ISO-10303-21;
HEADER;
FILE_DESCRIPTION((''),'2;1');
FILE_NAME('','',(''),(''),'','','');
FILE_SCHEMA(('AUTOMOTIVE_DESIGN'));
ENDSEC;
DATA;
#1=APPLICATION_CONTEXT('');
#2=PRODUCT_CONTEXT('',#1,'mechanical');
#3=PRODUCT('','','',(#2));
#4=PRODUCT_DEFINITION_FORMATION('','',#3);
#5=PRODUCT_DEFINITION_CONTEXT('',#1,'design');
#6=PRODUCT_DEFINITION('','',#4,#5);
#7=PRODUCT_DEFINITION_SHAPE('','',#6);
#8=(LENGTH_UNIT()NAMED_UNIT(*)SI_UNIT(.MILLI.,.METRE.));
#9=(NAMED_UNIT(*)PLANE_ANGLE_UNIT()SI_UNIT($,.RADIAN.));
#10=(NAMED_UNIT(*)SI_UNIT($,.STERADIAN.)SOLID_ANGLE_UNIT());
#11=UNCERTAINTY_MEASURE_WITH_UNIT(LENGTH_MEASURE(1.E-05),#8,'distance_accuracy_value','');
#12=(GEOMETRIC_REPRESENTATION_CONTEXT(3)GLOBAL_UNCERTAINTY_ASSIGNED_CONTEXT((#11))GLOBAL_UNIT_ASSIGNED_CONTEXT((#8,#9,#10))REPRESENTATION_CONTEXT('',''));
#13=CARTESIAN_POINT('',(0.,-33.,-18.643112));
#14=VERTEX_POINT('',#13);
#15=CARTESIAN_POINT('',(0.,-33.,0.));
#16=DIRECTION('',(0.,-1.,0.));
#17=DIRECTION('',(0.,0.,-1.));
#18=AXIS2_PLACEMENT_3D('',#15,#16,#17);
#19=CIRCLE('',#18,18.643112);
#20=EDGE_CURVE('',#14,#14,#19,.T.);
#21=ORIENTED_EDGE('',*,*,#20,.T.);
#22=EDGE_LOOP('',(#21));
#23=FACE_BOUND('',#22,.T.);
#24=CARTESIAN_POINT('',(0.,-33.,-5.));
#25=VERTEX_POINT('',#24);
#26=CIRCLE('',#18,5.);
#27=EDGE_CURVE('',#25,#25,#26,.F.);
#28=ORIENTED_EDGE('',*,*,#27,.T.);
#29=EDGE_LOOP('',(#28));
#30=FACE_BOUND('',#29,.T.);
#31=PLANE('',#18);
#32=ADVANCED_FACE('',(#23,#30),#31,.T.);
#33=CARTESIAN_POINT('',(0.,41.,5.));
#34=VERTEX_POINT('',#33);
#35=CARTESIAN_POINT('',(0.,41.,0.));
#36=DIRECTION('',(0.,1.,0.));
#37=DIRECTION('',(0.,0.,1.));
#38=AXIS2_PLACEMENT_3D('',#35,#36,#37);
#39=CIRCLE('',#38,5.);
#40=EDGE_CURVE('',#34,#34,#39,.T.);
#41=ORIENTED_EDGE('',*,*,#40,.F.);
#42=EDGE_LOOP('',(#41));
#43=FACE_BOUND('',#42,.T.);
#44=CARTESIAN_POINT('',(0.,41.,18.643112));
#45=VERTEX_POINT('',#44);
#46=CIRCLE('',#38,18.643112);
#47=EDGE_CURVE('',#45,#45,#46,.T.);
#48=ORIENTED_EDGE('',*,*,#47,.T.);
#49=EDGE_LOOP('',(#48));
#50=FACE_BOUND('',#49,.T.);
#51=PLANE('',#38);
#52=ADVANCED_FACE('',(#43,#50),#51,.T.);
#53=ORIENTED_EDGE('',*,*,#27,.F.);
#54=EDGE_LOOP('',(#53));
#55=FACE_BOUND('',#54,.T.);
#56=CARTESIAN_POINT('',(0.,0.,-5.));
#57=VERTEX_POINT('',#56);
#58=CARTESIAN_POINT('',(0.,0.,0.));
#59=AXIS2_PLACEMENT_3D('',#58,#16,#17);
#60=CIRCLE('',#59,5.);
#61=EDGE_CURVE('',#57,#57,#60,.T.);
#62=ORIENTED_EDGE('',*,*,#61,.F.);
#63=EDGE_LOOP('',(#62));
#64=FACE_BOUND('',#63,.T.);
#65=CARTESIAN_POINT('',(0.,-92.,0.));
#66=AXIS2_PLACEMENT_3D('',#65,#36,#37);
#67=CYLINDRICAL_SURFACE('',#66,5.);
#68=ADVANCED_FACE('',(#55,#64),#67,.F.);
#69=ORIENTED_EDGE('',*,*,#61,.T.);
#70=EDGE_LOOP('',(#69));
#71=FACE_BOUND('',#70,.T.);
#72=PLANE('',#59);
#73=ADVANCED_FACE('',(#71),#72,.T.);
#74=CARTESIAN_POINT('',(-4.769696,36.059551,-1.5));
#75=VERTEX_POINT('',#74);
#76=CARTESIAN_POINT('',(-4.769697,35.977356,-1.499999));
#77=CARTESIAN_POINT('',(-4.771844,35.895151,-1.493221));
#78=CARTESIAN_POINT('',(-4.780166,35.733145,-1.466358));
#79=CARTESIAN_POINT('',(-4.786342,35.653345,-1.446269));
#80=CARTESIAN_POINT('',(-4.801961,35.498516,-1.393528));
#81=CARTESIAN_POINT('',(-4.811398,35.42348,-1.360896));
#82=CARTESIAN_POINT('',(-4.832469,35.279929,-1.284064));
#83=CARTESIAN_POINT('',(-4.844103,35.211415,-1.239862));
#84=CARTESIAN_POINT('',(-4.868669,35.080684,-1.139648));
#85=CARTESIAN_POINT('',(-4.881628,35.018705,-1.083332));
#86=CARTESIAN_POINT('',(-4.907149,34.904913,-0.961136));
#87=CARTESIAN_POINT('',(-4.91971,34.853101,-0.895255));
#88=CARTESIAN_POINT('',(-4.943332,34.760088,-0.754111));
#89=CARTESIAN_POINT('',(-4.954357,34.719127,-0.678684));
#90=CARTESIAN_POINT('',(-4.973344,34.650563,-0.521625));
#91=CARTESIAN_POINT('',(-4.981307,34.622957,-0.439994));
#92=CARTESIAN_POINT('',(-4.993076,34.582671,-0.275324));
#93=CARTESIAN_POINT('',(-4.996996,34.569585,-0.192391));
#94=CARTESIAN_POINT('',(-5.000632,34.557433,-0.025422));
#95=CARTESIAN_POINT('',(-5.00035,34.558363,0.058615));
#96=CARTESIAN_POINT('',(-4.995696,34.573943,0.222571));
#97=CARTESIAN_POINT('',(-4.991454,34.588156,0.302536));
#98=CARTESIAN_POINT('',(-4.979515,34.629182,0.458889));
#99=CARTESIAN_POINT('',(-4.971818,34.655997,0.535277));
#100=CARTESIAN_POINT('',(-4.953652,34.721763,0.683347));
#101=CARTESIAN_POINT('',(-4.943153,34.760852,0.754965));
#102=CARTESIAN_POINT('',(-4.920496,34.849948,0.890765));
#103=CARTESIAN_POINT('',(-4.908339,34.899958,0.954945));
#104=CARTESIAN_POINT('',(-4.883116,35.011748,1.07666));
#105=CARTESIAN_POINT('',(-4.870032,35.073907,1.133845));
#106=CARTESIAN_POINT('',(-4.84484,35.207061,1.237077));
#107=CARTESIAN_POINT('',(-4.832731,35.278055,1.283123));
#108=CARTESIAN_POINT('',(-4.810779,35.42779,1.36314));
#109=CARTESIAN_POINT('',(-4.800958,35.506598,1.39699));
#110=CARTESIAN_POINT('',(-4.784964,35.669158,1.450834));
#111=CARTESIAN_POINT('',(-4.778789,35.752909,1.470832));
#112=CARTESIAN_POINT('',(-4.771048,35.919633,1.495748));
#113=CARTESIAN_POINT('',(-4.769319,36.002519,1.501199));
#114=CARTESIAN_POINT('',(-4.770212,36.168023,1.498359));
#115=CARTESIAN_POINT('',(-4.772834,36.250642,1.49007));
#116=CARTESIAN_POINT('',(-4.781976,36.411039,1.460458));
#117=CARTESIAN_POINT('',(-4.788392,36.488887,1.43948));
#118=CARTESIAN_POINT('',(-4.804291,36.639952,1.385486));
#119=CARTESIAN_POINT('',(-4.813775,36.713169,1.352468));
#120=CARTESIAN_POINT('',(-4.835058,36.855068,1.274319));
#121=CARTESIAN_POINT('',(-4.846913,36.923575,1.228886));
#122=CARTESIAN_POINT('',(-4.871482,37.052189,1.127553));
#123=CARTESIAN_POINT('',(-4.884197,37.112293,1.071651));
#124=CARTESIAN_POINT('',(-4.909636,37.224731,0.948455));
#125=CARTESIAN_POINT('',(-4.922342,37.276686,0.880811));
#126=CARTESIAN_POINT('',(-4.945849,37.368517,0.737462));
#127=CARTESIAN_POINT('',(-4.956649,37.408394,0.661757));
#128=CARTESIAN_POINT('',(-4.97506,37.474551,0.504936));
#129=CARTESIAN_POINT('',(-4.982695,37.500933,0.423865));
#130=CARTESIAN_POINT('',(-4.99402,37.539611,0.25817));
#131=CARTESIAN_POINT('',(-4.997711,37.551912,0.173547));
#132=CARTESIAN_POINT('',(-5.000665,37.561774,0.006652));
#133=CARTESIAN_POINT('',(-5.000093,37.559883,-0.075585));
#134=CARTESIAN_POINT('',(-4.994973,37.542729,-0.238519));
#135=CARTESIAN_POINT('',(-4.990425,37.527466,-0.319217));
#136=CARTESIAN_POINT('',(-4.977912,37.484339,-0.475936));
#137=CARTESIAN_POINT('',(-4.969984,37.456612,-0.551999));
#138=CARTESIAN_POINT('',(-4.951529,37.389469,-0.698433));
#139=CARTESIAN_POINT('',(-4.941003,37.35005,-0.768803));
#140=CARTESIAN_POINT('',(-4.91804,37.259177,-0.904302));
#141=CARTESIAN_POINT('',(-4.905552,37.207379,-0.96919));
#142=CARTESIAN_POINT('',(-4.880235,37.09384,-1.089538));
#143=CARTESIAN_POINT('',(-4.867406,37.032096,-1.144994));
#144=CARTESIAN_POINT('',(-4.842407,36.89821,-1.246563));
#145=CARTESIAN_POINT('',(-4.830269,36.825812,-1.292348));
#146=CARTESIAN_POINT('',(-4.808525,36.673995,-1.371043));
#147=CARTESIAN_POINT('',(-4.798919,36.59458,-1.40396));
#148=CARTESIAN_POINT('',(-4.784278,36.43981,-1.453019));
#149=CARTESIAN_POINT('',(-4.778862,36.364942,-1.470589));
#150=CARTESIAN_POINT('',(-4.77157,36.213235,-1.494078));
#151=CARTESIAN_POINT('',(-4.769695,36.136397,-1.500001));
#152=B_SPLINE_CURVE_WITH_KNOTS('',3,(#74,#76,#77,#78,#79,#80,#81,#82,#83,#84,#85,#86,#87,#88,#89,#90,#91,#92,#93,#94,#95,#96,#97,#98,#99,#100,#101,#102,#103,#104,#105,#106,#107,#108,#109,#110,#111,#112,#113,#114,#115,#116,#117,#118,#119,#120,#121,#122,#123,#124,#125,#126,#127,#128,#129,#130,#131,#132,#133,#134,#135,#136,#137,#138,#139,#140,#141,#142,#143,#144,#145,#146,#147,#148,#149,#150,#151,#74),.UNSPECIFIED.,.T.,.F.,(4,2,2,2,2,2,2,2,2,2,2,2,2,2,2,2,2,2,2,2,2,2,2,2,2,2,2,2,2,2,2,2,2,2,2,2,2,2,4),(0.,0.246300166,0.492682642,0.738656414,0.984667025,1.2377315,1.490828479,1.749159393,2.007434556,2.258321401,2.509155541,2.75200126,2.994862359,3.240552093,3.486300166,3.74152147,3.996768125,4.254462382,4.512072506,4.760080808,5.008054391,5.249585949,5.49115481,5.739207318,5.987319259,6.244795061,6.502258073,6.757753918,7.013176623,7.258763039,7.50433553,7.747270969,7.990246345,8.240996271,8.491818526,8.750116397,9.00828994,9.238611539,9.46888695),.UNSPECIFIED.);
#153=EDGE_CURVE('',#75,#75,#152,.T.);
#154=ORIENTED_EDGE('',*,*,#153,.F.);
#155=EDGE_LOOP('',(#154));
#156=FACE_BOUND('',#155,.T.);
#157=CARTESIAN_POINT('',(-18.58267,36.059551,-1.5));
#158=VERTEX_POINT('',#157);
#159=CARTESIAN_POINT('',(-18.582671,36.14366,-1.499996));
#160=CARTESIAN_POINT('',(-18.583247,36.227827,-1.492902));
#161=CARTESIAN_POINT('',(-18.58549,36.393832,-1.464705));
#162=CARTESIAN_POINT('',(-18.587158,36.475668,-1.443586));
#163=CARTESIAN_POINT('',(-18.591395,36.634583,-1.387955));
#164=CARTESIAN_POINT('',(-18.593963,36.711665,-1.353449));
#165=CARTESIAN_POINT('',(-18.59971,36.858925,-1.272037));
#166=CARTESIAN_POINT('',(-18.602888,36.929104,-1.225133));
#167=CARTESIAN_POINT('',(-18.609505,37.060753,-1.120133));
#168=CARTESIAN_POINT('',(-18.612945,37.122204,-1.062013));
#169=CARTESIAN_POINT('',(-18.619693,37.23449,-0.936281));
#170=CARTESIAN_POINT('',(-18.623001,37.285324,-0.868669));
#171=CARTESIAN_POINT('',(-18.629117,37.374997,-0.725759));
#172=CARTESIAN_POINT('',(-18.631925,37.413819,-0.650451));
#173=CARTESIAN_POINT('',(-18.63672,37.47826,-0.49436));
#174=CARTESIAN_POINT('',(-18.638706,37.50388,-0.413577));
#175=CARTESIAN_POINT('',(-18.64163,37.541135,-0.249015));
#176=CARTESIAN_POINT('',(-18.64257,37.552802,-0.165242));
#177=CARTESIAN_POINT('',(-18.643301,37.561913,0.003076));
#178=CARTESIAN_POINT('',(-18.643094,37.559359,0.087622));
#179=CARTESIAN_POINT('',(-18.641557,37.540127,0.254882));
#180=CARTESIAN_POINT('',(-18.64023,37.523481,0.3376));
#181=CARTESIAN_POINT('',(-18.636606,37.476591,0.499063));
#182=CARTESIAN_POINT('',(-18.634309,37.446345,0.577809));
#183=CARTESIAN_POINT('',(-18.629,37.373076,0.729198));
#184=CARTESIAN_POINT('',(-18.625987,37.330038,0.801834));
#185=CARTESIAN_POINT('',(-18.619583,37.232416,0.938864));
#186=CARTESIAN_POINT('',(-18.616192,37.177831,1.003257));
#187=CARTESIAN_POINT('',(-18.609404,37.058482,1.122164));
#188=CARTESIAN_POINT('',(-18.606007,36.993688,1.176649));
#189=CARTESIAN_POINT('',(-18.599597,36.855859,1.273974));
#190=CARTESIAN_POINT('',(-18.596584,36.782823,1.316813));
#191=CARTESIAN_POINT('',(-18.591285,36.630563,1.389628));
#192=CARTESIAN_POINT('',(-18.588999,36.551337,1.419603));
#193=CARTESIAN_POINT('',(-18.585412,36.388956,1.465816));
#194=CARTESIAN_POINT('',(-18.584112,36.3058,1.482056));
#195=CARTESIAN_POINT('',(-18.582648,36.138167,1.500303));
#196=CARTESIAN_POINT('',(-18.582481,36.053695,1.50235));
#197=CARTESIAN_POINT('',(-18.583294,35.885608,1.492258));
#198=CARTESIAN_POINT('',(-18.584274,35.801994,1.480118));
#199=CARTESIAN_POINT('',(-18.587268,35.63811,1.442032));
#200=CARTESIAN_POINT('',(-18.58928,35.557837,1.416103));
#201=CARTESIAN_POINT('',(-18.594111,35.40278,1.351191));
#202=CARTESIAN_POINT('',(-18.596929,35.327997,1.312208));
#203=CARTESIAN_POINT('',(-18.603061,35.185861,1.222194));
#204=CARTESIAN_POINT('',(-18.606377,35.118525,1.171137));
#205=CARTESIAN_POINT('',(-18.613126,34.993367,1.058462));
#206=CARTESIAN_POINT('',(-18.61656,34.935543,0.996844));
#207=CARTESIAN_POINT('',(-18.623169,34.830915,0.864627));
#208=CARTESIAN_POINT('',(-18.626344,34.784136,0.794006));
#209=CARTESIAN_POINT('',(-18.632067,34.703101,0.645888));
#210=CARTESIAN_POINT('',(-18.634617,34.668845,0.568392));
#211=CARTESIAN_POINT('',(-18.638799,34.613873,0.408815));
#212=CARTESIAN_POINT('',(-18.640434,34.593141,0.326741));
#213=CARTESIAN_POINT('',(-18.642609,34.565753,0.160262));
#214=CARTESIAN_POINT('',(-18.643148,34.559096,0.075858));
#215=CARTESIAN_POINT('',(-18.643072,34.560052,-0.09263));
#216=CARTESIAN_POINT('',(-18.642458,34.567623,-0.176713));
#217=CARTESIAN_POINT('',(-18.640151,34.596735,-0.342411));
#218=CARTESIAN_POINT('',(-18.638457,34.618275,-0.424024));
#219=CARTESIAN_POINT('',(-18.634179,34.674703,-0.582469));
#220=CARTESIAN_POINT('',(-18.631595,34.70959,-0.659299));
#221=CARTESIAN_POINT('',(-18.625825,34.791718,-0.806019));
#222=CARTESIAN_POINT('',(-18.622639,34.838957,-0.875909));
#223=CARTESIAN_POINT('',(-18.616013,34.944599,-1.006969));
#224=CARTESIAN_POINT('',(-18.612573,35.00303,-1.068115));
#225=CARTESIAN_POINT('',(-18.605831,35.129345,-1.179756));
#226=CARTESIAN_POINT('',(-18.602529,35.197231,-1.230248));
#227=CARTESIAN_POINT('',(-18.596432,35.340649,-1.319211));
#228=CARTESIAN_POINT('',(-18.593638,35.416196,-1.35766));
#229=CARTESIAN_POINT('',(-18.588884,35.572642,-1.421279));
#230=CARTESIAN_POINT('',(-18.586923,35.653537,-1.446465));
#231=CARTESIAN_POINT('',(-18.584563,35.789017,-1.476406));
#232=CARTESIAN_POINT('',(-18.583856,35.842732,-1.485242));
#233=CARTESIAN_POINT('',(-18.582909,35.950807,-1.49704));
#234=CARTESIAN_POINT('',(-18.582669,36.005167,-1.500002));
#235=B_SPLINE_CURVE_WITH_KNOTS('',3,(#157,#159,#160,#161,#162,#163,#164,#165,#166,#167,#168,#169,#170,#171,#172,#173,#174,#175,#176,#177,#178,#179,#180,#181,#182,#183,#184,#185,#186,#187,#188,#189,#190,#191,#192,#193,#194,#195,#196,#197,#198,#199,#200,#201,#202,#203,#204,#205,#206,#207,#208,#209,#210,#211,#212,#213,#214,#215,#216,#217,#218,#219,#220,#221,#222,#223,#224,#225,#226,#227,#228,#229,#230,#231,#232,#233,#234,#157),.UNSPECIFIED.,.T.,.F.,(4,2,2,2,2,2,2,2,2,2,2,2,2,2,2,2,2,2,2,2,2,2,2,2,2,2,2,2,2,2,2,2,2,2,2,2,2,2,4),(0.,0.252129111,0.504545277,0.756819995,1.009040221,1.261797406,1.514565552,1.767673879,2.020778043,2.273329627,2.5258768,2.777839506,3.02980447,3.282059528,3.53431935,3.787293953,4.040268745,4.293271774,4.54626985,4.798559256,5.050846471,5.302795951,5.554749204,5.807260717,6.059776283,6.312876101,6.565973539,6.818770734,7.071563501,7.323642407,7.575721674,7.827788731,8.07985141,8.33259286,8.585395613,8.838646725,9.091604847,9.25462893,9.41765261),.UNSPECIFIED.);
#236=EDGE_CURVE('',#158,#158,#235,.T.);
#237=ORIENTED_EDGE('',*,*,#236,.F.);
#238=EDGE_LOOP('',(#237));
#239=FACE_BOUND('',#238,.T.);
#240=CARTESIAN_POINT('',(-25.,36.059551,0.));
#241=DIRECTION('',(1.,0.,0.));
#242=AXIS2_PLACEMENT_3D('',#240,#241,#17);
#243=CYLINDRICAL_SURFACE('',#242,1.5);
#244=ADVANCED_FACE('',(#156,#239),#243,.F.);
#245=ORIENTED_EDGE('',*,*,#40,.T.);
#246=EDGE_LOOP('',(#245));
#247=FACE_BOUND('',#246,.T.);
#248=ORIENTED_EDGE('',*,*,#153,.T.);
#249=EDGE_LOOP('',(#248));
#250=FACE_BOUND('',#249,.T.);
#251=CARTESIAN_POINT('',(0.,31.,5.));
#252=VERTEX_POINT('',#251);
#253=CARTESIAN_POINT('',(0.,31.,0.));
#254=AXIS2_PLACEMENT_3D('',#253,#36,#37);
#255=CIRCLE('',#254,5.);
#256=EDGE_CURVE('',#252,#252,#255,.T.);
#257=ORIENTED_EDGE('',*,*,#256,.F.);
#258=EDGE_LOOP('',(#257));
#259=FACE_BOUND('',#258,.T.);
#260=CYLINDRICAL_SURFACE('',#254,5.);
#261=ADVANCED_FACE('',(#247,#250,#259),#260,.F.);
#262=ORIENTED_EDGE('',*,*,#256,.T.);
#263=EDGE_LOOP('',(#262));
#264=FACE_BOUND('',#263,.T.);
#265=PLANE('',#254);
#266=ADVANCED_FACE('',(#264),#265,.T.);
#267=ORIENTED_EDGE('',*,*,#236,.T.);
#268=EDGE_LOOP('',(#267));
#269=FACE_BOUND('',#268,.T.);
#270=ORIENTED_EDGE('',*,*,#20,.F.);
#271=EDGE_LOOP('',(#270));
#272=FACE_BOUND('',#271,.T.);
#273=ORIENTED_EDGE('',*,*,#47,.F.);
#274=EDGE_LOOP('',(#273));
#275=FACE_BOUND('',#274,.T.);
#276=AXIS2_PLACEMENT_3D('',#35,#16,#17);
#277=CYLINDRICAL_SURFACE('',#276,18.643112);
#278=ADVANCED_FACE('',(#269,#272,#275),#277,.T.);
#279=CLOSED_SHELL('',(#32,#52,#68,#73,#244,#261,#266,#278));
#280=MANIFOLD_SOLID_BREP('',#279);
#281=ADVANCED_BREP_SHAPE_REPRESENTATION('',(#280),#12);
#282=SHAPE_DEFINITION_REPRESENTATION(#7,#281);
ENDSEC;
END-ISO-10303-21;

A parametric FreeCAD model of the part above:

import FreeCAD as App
import Part
import Sketcher
from FreeCAD import Vector

doc = App.newDocument("Part")
body = doc.addObject("PartDesign::Body", "Body")

# Sketch on XZ plane
sketch1 = doc.addObject("Sketcher::SketchObject", "Sketch")
body.addObject(sketch1)
sketch1.AttachmentSupport = (doc.XZ_Plane, [""])
sketch1.MapMode = "FlatFace"
sketch1.addGeometry(Part.Circle(Vector(0, 0, 0), Vector(0, 0, 1), 18.643112), False)
sketch1.addConstraint([
    Sketcher.Constraint("Coincident", 0, 3, -1, 1),
    Sketcher.Constraint("Diameter", 0, 37.286224),
])
pad1 = doc.addObject("PartDesign::Pad", "Pad")
body.addObject(pad1)
pad1.Profile = sketch1
pad1.Length = 41
pad1.Reversed = True

# Sketch on XZ plane
sketch2 = doc.addObject("Sketcher::SketchObject", "Sketch001")
body.addObject(sketch2)
sketch2.AttachmentSupport = (doc.XZ_Plane, [""])
sketch2.MapMode = "FlatFace"
sketch2.AttachmentOffset = App.Placement(Vector(0, 0, -41), App.Rotation())
sketch2.addGeometry(Part.Circle(Vector(0, 0, 0), Vector(0, 0, 1), 5), False)
sketch2.addConstraint([
    Sketcher.Constraint("Coincident", 0, 3, -1, 1),
    Sketcher.Constraint("Diameter", 0, 10.0),
])
pocket1 = doc.addObject("PartDesign::Pocket", "Pocket")
body.addObject(pocket1)
pocket1.Profile = sketch2
pocket1.Length = 10
pocket1.Reversed = True

# Sketch on YZ plane
sketch3 = doc.addObject("Sketcher::SketchObject", "Sketch002")
body.addObject(sketch3)
sketch3.AttachmentSupport = (doc.YZ_Plane, [""])
sketch3.MapMode = "FlatFace"
sketch3.addGeometry(Part.Circle(Vector(36.059551, 0, 0), Vector(0, 0, 1), 1.5), False)
sketch3.addConstraint([
    Sketcher.Constraint("PointOnObject", 0, 3, -1),
    Sketcher.Constraint("Diameter", 0, 3.0),
    Sketcher.Constraint("DistanceX", -1, 1, 0, 3, 36.059551),
])
pocket2 = doc.addObject("PartDesign::Pocket", "Pocket001")
body.addObject(pocket2)
pocket2.Profile = sketch3
pocket2.Length = 25

# Sketch on XZ plane
sketch4 = doc.addObject("Sketcher::SketchObject", "Sketch003")
body.addObject(sketch4)
sketch4.AttachmentSupport = (doc.XZ_Plane, [""])
sketch4.MapMode = "FlatFace"
sketch4.AttachmentOffset = App.Placement(Vector(0, 0, 33), App.Rotation())
sketch4.addGeometry(Part.Circle(Vector(0, 0, 0), Vector(0, 0, 1), 18.643112), False)
sketch4.addConstraint([
    Sketcher.Constraint("Coincident", 0, 3, -1, 1),
    Sketcher.Constraint("Diameter", 0, 37.286224),
])
pad2 = doc.addObject("PartDesign::Pad", "Pad001")
body.addObject(pad2)
pad2.Profile = sketch4
pad2.Length = 33
pad2.Reversed = True

# Sketch on XZ plane
sketch5 = doc.addObject("Sketcher::SketchObject", "Sketch004")
body.addObject(sketch5)
sketch5.AttachmentSupport = (doc.XZ_Plane, [""])
sketch5.MapMode = "FlatFace"
sketch5.addGeometry(Part.Circle(Vector(0, 0, 0), Vector(0, 0, 1), 5), False)
sketch5.addConstraint([
    Sketcher.Constraint("Coincident", 0, 3, -1, 1),
    Sketcher.Constraint("Diameter", 0, 10.0),
])
pocket3 = doc.addObject("PartDesign::Pocket", "Pocket002")
body.addObject(pocket3)
pocket3.Profile = sketch5
pocket3.Length = 92
pocket3.Reversed = True

doc.recompute()
